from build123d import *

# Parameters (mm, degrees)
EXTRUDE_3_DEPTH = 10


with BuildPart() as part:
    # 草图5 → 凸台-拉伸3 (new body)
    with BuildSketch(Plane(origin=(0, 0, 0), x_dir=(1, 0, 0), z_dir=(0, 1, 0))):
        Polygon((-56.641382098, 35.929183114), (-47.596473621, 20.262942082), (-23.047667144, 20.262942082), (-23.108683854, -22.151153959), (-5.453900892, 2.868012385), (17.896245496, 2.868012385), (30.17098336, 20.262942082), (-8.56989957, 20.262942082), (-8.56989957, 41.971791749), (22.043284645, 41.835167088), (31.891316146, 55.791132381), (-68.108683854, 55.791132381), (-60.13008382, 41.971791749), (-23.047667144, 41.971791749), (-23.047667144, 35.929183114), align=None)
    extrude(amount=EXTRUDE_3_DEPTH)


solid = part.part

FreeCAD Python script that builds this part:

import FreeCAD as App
import Part
import Sketcher
from FreeCAD import Vector
Q = App.Units.Quantity


def add_polygon(sketch, points):
    """Adds a closed chain of lines whose ends are joined by coincident constraints."""
    first, n = sketch.GeometryCount, len(points)
    for a, b in zip(points, points[1:] + points[:1]):
        sketch.addGeometry(Part.LineSegment(App.Vector(*a, 0), App.Vector(*b, 0)), False)
    for i in range(n):
        sketch.addConstraint(Sketcher.Constraint("Coincident", first + i, 2, first + (i + 1) % n, 1))

doc = App.newDocument("Part")
params = doc.addObject("Spreadsheet::Sheet", "Params")
for row, (alias, value) in enumerate([
    ("sketch1_width", "100 mm"),
    ("pad1_length", "10 mm"),
], start=1):
    params.set(f"A{row}", alias)
    params.set(f"B{row}", "=" + value)
    params.setAlias(f"B{row}", alias)

body = doc.addObject("PartDesign::Body", "Body")

# Sketch on XZ plane
sketch1 = doc.addObject("Sketcher::SketchObject", "Sketch")
body.addObject(sketch1)
sketch1.AttachmentSupport = (doc.XZ_Plane, [""])
sketch1.MapMode = "FlatFace"
add_polygon(sketch1, [(-57, -36), (-48, -20), (-23, -20), (-23, 22), (-5, -3), (18, -3), (30, -20), (-9, -20), (-9, -42), (22, -42), (32, -56), (-68, -56), (-60, -42), (-23, -42), (-23, -36)])  # lines 0-14
sketch1.addConstraint([
    Sketcher.Constraint("Horizontal", 1),
    Sketcher.Constraint("Horizontal", 4),
    Sketcher.Constraint("Horizontal", 6),
    Sketcher.Constraint("Vertical", 7),
    Sketcher.Constraint("Horizontal", 10),
    Sketcher.Constraint("Horizontal", 12),
    Sketcher.Constraint("Vertical", 13),
    Sketcher.Constraint("Horizontal", 14),
    Sketcher.Constraint("Parallel", 3, 5),
    Sketcher.Constraint("Parallel", 5, 9),
    Sketcher.Constraint("Parallel", 0, 11),
    Sketcher.Constraint("Horizontal", 1, 2, 5, 2),
    Sketcher.Constraint("Horizontal", 7, 2, 11, 2),
    Sketcher.Constraint("Vertical", 1, 2, 12, 2),
    Sketcher.Constraint("DistanceX", 10, 2, 10, 1, 100.0),
    Sketcher.Constraint("Angle", 0, Q("60 deg")),
    Sketcher.Constraint("DistanceX", 6, 2, 3, 2, 3.115999),
    Sketcher.Constraint("Distance", 11, 15.9572),
    Sketcher.Constraint("DistanceY", 7, 2, 7, 1, 21.70885),
    Sketcher.Constraint("DistanceY", 13, 1, 13, 2, 6.042609),
    Sketcher.Constraint("DistanceX", 3, 2, -1, 1, 5.453901),
    Sketcher.Constraint("DistanceX", 8, 2, 5, 2, 8.127699),
    Sketcher.Constraint("DistanceX", 11, 2, 14, 2, 3.488702),
    Sketcher.Constraint("Distance", 2, 42.41414),
    Sketcher.Constraint("Distance", 3, 30.621072),
    Sketcher.Constraint("Distance", 8, 30.613489),
    Sketcher.Constraint("Distance", 9, 17.08077),
    Sketcher.Constraint("DistanceX", 1, 1, 1, 2, 24.548806),
    Sketcher.Constraint("DistanceX", 4, 1, 4, 2, 23.350146),
    Sketcher.Constraint("DistanceY", 7, 2, -1, 1, 41.971792),
])
sketch1.setExpression("Constraints[29]", "Params.sketch1_width")
pad1 = doc.addObject("PartDesign::Pad", "Pad")
body.addObject(pad1)
pad1.Profile = sketch1
pad1.setExpression("Length", "Params.pad1_length")
pad1.Reversed = True

doc.recompute()
